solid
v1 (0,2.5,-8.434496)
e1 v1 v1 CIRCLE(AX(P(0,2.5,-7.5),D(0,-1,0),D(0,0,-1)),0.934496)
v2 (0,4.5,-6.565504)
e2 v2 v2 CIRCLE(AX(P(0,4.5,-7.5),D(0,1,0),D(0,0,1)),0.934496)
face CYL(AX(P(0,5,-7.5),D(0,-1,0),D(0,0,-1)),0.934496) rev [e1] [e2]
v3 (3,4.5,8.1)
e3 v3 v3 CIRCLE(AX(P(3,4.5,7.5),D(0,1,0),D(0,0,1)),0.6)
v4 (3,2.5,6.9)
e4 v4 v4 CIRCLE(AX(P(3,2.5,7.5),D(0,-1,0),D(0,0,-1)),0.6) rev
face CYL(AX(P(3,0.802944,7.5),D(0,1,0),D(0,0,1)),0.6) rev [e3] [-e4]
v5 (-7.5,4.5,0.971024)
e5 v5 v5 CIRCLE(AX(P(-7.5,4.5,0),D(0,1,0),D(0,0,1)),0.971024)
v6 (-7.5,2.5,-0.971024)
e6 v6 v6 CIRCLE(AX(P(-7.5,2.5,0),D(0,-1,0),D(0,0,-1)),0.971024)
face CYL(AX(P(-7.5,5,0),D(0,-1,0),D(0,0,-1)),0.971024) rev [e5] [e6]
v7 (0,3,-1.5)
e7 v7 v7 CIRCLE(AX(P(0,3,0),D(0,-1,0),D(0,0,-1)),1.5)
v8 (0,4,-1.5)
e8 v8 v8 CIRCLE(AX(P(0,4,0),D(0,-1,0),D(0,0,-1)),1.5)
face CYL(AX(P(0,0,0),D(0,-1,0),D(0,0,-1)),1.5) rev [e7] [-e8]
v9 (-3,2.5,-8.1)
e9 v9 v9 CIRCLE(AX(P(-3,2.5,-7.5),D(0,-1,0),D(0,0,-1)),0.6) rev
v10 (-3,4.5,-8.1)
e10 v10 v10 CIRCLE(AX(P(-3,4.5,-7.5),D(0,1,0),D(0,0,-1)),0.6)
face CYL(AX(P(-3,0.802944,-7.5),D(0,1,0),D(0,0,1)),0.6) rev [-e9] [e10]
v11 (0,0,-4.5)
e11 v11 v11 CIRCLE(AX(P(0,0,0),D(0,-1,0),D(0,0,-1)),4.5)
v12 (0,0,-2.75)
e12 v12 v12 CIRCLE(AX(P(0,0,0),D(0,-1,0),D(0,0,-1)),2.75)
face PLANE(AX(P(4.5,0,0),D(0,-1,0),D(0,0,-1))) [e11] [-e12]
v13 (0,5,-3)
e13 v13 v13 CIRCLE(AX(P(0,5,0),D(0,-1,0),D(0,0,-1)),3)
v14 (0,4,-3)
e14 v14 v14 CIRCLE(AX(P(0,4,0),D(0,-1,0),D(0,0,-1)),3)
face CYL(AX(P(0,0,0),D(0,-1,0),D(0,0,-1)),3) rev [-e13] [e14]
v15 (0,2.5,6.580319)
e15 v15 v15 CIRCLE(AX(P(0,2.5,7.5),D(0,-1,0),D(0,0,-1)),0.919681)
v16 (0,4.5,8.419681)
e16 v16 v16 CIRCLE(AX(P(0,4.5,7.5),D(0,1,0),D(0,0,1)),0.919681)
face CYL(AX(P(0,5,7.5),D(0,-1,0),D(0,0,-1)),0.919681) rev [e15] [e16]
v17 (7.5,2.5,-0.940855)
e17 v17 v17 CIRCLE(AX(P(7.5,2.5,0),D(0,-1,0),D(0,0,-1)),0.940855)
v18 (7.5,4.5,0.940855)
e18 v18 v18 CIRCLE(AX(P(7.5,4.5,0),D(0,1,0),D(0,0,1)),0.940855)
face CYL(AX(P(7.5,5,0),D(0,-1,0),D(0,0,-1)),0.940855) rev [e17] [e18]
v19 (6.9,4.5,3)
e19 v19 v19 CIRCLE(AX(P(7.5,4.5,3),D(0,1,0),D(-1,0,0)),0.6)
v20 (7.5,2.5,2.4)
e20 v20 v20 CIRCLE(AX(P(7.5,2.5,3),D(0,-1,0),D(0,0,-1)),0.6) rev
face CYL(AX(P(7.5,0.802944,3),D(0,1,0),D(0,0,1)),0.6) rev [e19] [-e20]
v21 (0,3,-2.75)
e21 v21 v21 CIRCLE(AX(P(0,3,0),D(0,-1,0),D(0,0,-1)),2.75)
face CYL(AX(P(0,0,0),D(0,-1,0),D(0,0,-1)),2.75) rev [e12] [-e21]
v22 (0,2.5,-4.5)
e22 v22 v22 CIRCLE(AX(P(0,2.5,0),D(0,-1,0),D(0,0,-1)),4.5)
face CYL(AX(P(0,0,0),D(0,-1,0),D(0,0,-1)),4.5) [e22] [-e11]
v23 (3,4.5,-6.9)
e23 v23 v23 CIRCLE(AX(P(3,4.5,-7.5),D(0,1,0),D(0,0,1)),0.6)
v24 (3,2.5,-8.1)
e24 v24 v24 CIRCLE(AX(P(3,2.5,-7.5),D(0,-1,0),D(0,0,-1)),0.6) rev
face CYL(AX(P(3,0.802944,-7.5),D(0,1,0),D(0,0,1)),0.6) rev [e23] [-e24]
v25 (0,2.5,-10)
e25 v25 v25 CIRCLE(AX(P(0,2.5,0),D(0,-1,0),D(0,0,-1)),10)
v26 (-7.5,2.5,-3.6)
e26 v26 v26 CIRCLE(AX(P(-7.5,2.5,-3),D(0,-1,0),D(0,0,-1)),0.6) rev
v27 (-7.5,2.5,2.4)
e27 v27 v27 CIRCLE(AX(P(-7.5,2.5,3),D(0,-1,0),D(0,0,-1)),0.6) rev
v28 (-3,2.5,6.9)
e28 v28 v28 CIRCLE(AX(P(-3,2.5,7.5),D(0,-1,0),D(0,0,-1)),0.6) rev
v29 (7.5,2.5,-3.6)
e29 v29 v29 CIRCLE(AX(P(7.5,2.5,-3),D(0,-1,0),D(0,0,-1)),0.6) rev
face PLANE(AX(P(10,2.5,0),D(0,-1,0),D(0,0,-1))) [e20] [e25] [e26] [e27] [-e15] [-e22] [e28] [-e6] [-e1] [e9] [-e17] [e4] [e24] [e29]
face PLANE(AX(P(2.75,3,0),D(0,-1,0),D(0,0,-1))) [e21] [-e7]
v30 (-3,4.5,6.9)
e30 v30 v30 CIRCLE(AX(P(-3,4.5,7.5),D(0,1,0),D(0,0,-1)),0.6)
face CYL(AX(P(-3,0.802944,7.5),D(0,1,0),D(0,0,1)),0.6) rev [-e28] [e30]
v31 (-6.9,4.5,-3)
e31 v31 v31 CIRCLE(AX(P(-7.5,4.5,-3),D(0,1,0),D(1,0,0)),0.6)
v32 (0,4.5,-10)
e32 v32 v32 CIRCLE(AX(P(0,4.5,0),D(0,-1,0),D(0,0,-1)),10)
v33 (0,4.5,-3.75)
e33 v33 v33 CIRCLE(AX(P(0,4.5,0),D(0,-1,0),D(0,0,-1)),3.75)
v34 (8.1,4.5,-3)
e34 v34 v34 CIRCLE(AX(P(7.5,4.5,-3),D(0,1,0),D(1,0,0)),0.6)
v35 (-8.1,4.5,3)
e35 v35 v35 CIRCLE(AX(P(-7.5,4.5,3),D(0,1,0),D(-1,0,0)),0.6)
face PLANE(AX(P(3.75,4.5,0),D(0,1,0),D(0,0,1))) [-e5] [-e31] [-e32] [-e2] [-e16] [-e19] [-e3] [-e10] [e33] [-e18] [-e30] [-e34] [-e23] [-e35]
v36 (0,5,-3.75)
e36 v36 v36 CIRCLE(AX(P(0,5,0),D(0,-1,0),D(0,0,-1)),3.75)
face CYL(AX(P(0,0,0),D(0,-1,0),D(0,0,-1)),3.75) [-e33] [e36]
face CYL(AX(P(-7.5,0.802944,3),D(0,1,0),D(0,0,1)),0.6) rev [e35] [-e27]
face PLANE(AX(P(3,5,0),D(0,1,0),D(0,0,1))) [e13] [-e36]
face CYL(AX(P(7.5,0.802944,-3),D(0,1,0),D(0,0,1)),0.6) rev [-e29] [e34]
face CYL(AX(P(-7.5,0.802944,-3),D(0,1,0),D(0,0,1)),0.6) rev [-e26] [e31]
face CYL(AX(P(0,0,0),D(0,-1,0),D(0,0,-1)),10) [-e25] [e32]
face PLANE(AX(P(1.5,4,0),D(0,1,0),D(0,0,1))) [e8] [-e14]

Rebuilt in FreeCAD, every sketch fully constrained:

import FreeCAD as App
import Part
import Sketcher
Q = App.Units.Quantity

doc = App.newDocument("Part")
body = doc.addObject("PartDesign::Body", "Body")

sketch1 = body.newObject("Sketcher::SketchObject", "Sketch")
sketch1.AttachmentSupport = (doc.getObject("XY_Plane"), [""])
sketch1.MapMode = "FlatFace"
sketch1.addGeometry([
    Part.LineSegment(App.Vector(2.8, 3, 0), App.Vector(2.8, 0, 0)),
    Part.LineSegment(App.Vector(2.8, 0, 0), App.Vector(4.5, 0, 0)),
    Part.LineSegment(App.Vector(4.5, 0, 0), App.Vector(4.5, 2.5, 0)),
    Part.LineSegment(App.Vector(4.5, 2.5, 0), App.Vector(10, 2.5, 0)),
    Part.LineSegment(App.Vector(10, 2.5, 0), App.Vector(10, 4.5, 0)),
    Part.LineSegment(App.Vector(10, 4.5, 0), App.Vector(3.8, 4.5, 0)),
    Part.LineSegment(App.Vector(3.8, 4.5, 0), App.Vector(3.8, 5, 0)),
    Part.LineSegment(App.Vector(3.8, 5, 0), App.Vector(3, 5, 0)),
    Part.LineSegment(App.Vector(3, 5, 0), App.Vector(3, 4, 0)),
    Part.LineSegment(App.Vector(3, 4, 0), App.Vector(1.5, 4, 0)),
    Part.LineSegment(App.Vector(1.5, 4, 0), App.Vector(1.5, 3, 0)),
    Part.LineSegment(App.Vector(1.5, 3, 0), App.Vector(2.8, 3, 0)),
], False)
sketch1.addConstraint([
    Sketcher.Constraint("Coincident", 0, 2, 1, 1),
    Sketcher.Constraint("Coincident", 1, 2, 2, 1),
    Sketcher.Constraint("Coincident", 2, 2, 3, 1),
    Sketcher.Constraint("Coincident", 3, 2, 4, 1),
    Sketcher.Constraint("Coincident", 4, 2, 5, 1),
    Sketcher.Constraint("Coincident", 5, 2, 6, 1),
    Sketcher.Constraint("Coincident", 6, 2, 7, 1),
    Sketcher.Constraint("Coincident", 7, 2, 8, 1),
    Sketcher.Constraint("Coincident", 8, 2, 9, 1),
    Sketcher.Constraint("Coincident", 9, 2, 10, 1),
    Sketcher.Constraint("Coincident", 10, 2, 11, 1),
    Sketcher.Constraint("Coincident", 11, 2, 0, 1),
    Sketcher.Constraint("Vertical", 0),
    Sketcher.Constraint("Horizontal", 1),
    Sketcher.Constraint("Vertical", 2),
    Sketcher.Constraint("Horizontal", 3),
    Sketcher.Constraint("Vertical", 4),
    Sketcher.Constraint("Horizontal", 5),
    Sketcher.Constraint("Vertical", 6),
    Sketcher.Constraint("Horizontal", 7),
    Sketcher.Constraint("Vertical", 8),
    Sketcher.Constraint("Horizontal", 9),
    Sketcher.Constraint("Vertical", 10),
    Sketcher.Constraint("Horizontal", 11),
    Sketcher.Constraint("PointOnObject", 0, 2, -1),
    Sketcher.Constraint("Equal", 8, 10),
    Sketcher.Constraint("DistanceY", 0, 2, 0, 1, Q("3 mm")),
    Sketcher.Constraint("DistanceY", 4, 1, 4, 2, Q("2 mm")),
    Sketcher.Constraint("DistanceY", 8, 2, 8, 1, Q("1 mm")),
    Sketcher.Constraint("DistanceX", 3, 1, 3, 2, Q("5.5 mm")),
    Sketcher.Constraint("DistanceX", 9, 2, 9, 1, Q("1.5 mm")),
    Sketcher.Constraint("DistanceY", 2, 1, 2, 2, Q("2.5 mm")),
    Sketcher.Constraint("DistanceX", -1, 1, 3, 2, Q("10 mm")),
    Sketcher.Constraint("DistanceX", -1, 1, 7, 2, Q("3 mm")),
    Sketcher.Constraint("DistanceX", 0, 2, 5, 2, Q("1 mm")),
    Sketcher.Constraint("DistanceX", 1, 1, 1, 2, Q("1.75 mm")),
])
revolution = body.newObject("PartDesign::Revolution", "Revolution")
revolution.Profile = sketch1
revolution.ReferenceAxis = (sketch1, ["V_Axis"])
revolution.Angle = 360

sketch2 = body.newObject("Sketcher::SketchObject", "Sketch001")
sketch2.AttachmentSupport = (doc.getObject("XZ_Plane"), [""])
sketch2.MapMode = "FlatFace"
sketch2.AttachmentOffset = App.Placement(App.Vector(0, 0, -4.5), App.Rotation())
sketch2.addGeometry([
    Part.Circle(App.Vector(0, -7.5, 0), App.Vector(0, 0, 1), 0.6),
    Part.Circle(App.Vector(3, -7.5, 0), App.Vector(0, 0, 1), 0.6),
    Part.Circle(App.Vector(-3, -7.5, 0), App.Vector(0, 0, 1), 0.6),
], False)
sketch2.addConstraint([
    Sketcher.Constraint("Equal", 0, 1),
    Sketcher.Constraint("Equal", 1, 2),
    Sketcher.Constraint("Symmetric", 1, 3, 2, 3, -2),
    Sketcher.Constraint("PointOnObject", 0, 3, -2),
    Sketcher.Constraint("Horizontal", 0, 3, 1, 3),
    Sketcher.Constraint("Diameter", 0, Q("1.2 mm")),
    Sketcher.Constraint("DistanceX", -1, 1, 1, 3, Q("3 mm")),
    Sketcher.Constraint("DistanceY", 0, 3, -1, 1, Q("7.5 mm")),
])
pocket1 = body.newObject("PartDesign::Pocket", "Pocket")
pocket1.Profile = sketch2
pocket1.Length = 2
pocket1.Reversed = True
doc.recompute()

polarpattern = body.newObject("PartDesign::PolarPattern", "PolarPattern")
polarpattern.Originals = [pocket1]
polarpattern.Axis = (doc.getObject("Y_Axis"), [""])
polarpattern.Angle = 360
polarpattern.Occurrences = 4
body.Tip = polarpattern

sketch3 = body.newObject("Sketcher::SketchObject", "Sketch002")
sketch3.AttachmentSupport = (doc.getObject("XZ_Plane"), [""])
sketch3.MapMode = "FlatFace"
sketch3.AttachmentOffset = App.Placement(App.Vector(0, 0, -2.5), App.Rotation())
sketch3.addGeometry([
    Part.Circle(App.Vector(0, -7.5, 0), App.Vector(0, 0, 1), 0.9),
    Part.Circle(App.Vector(-7.5, 0, 0), App.Vector(0, 0, 1), 1),
    Part.Circle(App.Vector(0, 7.5, 0), App.Vector(0, 0, 1), 0.9),
    Part.Circle(App.Vector(7.5, 0, 0), App.Vector(0, 0, 1), 0.9),
], False)
sketch3.addConstraint([
    Sketcher.Constraint("Symmetric", 0, 3, 2, 3, -1, 1),
    Sketcher.Constraint("Symmetric", 1, 3, 3, 3, -1, 1),
    Sketcher.Constraint("PointOnObject", 0, 3, -2),
    Sketcher.Constraint("PointOnObject", 1, 3, -1),
    Sketcher.Constraint("DistanceY", 0, 3, 2, 3, Q("15 mm")),
    Sketcher.Constraint("DistanceX", 1, 3, 3, 3, Q("15 mm")),
    Sketcher.Constraint("Diameter", 0, Q("1.868992 mm")),
    Sketcher.Constraint("Diameter", 2, Q("1.839361 mm")),
    Sketcher.Constraint("Diameter", 3, Q("1.881709 mm")),
    Sketcher.Constraint("Diameter", 1, Q("1.942047 mm")),
])
pocket2 = body.newObject("PartDesign::Pocket", "Pocket001")
pocket2.Profile = sketch3
pocket2.Type = "ThroughAll"

doc.recompute()
